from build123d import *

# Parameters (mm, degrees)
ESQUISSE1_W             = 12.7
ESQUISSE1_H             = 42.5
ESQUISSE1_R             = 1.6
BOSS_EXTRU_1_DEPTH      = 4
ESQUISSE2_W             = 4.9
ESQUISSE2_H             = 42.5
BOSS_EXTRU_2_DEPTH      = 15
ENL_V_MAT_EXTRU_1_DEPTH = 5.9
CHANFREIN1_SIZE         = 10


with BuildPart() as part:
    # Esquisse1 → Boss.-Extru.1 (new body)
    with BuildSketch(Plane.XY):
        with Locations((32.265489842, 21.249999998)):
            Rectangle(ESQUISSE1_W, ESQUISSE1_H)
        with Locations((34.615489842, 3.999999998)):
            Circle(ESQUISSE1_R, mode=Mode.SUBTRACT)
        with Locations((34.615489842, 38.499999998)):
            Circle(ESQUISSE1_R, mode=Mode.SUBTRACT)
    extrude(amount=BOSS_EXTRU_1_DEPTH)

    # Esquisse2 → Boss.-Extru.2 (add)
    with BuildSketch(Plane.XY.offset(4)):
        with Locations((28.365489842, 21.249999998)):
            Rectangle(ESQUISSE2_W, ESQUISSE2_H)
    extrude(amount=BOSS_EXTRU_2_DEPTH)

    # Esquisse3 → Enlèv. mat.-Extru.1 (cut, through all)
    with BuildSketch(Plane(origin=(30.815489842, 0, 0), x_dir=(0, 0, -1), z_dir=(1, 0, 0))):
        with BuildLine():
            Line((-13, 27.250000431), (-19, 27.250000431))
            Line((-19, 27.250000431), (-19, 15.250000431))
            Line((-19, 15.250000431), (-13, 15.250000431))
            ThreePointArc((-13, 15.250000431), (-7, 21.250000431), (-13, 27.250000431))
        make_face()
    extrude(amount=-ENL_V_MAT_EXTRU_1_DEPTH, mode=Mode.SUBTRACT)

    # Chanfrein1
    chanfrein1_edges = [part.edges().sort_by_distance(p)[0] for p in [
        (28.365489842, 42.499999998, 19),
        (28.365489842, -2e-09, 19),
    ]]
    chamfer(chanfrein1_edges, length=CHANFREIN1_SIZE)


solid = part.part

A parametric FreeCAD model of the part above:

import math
import FreeCAD as App
import Part
import Sketcher

V = App.Vector
Q = App.Units.Quantity


def edges_at(feature, points):
    """Names of the edges that pass closest to the given points."""
    edges = feature.Shape.Edges
    near = lambda p: min(range(len(edges)), key=lambda i: edges[i].distToShape(Part.Vertex(*p))[0])
    return sorted({f"Edge{near(p) + 1}" for p in points})


def add_polygon(sketch, points):
    """Adds a closed chain of lines whose ends are joined by coincident constraints."""
    first, n = sketch.GeometryCount, len(points)
    for a, b in zip(points, points[1:] + points[:1]):
        sketch.addGeometry(Part.LineSegment(App.Vector(*a, 0), App.Vector(*b, 0)), False)
    for i in range(n):
        sketch.addConstraint(Sketcher.Constraint("Coincident", first + i, 2, first + (i + 1) % n, 1))

doc = App.newDocument("Part")
body = doc.addObject("PartDesign::Body", "Body")

sketch1 = body.newObject("Sketcher::SketchObject", "Sketch")
sketch1.AttachmentSupport = (doc.getObject("XY_Plane"), [""])
sketch1.MapMode = "FlatFace"
add_polygon(sketch1, [(25.9, 42.5), (25.9, 0), (38.6, 0), (38.6, 42.5)])
sketch1.addGeometry(Part.Circle(V(34.6, 4, 0), V(0, 0, 1), 1.6), False)
sketch1.addGeometry(Part.Circle(V(34.6, 38.5, 0), V(0, 0, 1), 1.6), False)
sketch1.addConstraint([
    Sketcher.Constraint("Vertical", 0),
    Sketcher.Constraint("Horizontal", 1),
    Sketcher.Constraint("Vertical", 2),
    Sketcher.Constraint("Horizontal", 3),
    Sketcher.Constraint("Equal", 4, 5),
    Sketcher.Constraint("PointOnObject", 0, 2, -1),
    Sketcher.Constraint("Vertical", 4, 3, 5, 3),
    Sketcher.Constraint("Diameter", 4, Q("3.2 mm")),
    Sketcher.Constraint("DistanceX", 1, 1, 1, 2, Q("12.7 mm")),
    Sketcher.Constraint("DistanceY", 0, 2, 0, 1, Q("42.5 mm")),
    Sketcher.Constraint("DistanceY", -1, 1, 4, 3, Q("4 mm")),
    Sketcher.Constraint("DistanceX", 4, 3, 1, 2, Q("4 mm")),
    Sketcher.Constraint("DistanceY", 5, 3, 2, 2, Q("4 mm")),
    Sketcher.Constraint("DistanceX", -1, 1, 4, 3, Q("34.61549 mm")),
])
pad1 = body.newObject("PartDesign::Pad", "Pad")
pad1.Profile = sketch1
pad1.Length = 4

sketch2 = body.newObject("Sketcher::SketchObject", "Sketch001")
sketch2.AttachmentSupport = (doc.getObject("XY_Plane"), [""])
sketch2.MapMode = "FlatFace"
sketch2.AttachmentOffset = App.Placement(V(0, 0, 4), App.Rotation())
add_polygon(sketch2, [(25.9, 42.5), (25.9, 0), (30.8, 0), (30.8, 42.5)])
sketch2.addConstraint([
    Sketcher.Constraint("Vertical", 0),
    Sketcher.Constraint("Horizontal", 1),
    Sketcher.Constraint("Vertical", 2),
    Sketcher.Constraint("Horizontal", 3),
    Sketcher.Constraint("PointOnObject", 0, 2, -1),
    Sketcher.Constraint("DistanceX", 1, 1, 1, 2, Q("4.9 mm")),
    Sketcher.Constraint("DistanceY", 0, 2, 0, 1, Q("42.5 mm")),
    Sketcher.Constraint("DistanceX", -1, 1, 0, 2, Q("25.91549 mm")),
])
pad2 = body.newObject("PartDesign::Pad", "Pad001")
pad2.Profile = sketch2
pad2.Length = 15

sketch3 = body.newObject("Sketcher::SketchObject", "Sketch002")
sketch3.AttachmentSupport = (doc.getObject("YZ_Plane"), [""])
sketch3.MapMode = "FlatFace"
sketch3.AttachmentOffset = App.Placement(V(0, 0, 30.81549), App.Rotation())
sketch3.addGeometry([
    Part.LineSegment(V(27, 13, 0), V(27, 19, 0)),
    Part.LineSegment(V(27, 19, 0), V(15, 19, 0)),
    Part.LineSegment(V(15, 19, 0), V(15, 13, 0)),
    Part.ArcOfCircle(Part.Circle(V(21, 13, 0), V(0, 0, 1), 6), math.radians(180), math.radians(360)),
], False)
sketch3.addConstraint([
    Sketcher.Constraint("Coincident", 0, 2, 1, 1),
    Sketcher.Constraint("Coincident", 1, 2, 2, 1),
    Sketcher.Constraint("Tangent", 2, 2, 3, 1),
    Sketcher.Constraint("Tangent", 3, 2, 0, 1),
    Sketcher.Constraint("Vertical", 0),
    Sketcher.Constraint("Horizontal", 1),
    Sketcher.Constraint("Vertical", 2),
    Sketcher.Constraint("Radius", 3, Q("6 mm")),
    Sketcher.Constraint("DistanceY", 0, 1, 0, 2, Q("6 mm")),
    Sketcher.Constraint("DistanceY", -1, 1, 3, 3, Q("13 mm")),
    Sketcher.Constraint("DistanceX", -1, 1, 3, 3, Q("21.25 mm")),
])
pocket1 = body.newObject("PartDesign::Pocket", "Pocket")
pocket1.Profile = sketch3
pocket1.Type = "ThroughAll"
doc.recompute()

chamfer = body.newObject("PartDesign::Chamfer", "Chamfer")
chamfer.Base = (pocket1, edges_at(pocket1, [(28.365, 42.5, 19), (28.365, 0, 19)]))
chamfer.Size = 10

doc.recompute()
